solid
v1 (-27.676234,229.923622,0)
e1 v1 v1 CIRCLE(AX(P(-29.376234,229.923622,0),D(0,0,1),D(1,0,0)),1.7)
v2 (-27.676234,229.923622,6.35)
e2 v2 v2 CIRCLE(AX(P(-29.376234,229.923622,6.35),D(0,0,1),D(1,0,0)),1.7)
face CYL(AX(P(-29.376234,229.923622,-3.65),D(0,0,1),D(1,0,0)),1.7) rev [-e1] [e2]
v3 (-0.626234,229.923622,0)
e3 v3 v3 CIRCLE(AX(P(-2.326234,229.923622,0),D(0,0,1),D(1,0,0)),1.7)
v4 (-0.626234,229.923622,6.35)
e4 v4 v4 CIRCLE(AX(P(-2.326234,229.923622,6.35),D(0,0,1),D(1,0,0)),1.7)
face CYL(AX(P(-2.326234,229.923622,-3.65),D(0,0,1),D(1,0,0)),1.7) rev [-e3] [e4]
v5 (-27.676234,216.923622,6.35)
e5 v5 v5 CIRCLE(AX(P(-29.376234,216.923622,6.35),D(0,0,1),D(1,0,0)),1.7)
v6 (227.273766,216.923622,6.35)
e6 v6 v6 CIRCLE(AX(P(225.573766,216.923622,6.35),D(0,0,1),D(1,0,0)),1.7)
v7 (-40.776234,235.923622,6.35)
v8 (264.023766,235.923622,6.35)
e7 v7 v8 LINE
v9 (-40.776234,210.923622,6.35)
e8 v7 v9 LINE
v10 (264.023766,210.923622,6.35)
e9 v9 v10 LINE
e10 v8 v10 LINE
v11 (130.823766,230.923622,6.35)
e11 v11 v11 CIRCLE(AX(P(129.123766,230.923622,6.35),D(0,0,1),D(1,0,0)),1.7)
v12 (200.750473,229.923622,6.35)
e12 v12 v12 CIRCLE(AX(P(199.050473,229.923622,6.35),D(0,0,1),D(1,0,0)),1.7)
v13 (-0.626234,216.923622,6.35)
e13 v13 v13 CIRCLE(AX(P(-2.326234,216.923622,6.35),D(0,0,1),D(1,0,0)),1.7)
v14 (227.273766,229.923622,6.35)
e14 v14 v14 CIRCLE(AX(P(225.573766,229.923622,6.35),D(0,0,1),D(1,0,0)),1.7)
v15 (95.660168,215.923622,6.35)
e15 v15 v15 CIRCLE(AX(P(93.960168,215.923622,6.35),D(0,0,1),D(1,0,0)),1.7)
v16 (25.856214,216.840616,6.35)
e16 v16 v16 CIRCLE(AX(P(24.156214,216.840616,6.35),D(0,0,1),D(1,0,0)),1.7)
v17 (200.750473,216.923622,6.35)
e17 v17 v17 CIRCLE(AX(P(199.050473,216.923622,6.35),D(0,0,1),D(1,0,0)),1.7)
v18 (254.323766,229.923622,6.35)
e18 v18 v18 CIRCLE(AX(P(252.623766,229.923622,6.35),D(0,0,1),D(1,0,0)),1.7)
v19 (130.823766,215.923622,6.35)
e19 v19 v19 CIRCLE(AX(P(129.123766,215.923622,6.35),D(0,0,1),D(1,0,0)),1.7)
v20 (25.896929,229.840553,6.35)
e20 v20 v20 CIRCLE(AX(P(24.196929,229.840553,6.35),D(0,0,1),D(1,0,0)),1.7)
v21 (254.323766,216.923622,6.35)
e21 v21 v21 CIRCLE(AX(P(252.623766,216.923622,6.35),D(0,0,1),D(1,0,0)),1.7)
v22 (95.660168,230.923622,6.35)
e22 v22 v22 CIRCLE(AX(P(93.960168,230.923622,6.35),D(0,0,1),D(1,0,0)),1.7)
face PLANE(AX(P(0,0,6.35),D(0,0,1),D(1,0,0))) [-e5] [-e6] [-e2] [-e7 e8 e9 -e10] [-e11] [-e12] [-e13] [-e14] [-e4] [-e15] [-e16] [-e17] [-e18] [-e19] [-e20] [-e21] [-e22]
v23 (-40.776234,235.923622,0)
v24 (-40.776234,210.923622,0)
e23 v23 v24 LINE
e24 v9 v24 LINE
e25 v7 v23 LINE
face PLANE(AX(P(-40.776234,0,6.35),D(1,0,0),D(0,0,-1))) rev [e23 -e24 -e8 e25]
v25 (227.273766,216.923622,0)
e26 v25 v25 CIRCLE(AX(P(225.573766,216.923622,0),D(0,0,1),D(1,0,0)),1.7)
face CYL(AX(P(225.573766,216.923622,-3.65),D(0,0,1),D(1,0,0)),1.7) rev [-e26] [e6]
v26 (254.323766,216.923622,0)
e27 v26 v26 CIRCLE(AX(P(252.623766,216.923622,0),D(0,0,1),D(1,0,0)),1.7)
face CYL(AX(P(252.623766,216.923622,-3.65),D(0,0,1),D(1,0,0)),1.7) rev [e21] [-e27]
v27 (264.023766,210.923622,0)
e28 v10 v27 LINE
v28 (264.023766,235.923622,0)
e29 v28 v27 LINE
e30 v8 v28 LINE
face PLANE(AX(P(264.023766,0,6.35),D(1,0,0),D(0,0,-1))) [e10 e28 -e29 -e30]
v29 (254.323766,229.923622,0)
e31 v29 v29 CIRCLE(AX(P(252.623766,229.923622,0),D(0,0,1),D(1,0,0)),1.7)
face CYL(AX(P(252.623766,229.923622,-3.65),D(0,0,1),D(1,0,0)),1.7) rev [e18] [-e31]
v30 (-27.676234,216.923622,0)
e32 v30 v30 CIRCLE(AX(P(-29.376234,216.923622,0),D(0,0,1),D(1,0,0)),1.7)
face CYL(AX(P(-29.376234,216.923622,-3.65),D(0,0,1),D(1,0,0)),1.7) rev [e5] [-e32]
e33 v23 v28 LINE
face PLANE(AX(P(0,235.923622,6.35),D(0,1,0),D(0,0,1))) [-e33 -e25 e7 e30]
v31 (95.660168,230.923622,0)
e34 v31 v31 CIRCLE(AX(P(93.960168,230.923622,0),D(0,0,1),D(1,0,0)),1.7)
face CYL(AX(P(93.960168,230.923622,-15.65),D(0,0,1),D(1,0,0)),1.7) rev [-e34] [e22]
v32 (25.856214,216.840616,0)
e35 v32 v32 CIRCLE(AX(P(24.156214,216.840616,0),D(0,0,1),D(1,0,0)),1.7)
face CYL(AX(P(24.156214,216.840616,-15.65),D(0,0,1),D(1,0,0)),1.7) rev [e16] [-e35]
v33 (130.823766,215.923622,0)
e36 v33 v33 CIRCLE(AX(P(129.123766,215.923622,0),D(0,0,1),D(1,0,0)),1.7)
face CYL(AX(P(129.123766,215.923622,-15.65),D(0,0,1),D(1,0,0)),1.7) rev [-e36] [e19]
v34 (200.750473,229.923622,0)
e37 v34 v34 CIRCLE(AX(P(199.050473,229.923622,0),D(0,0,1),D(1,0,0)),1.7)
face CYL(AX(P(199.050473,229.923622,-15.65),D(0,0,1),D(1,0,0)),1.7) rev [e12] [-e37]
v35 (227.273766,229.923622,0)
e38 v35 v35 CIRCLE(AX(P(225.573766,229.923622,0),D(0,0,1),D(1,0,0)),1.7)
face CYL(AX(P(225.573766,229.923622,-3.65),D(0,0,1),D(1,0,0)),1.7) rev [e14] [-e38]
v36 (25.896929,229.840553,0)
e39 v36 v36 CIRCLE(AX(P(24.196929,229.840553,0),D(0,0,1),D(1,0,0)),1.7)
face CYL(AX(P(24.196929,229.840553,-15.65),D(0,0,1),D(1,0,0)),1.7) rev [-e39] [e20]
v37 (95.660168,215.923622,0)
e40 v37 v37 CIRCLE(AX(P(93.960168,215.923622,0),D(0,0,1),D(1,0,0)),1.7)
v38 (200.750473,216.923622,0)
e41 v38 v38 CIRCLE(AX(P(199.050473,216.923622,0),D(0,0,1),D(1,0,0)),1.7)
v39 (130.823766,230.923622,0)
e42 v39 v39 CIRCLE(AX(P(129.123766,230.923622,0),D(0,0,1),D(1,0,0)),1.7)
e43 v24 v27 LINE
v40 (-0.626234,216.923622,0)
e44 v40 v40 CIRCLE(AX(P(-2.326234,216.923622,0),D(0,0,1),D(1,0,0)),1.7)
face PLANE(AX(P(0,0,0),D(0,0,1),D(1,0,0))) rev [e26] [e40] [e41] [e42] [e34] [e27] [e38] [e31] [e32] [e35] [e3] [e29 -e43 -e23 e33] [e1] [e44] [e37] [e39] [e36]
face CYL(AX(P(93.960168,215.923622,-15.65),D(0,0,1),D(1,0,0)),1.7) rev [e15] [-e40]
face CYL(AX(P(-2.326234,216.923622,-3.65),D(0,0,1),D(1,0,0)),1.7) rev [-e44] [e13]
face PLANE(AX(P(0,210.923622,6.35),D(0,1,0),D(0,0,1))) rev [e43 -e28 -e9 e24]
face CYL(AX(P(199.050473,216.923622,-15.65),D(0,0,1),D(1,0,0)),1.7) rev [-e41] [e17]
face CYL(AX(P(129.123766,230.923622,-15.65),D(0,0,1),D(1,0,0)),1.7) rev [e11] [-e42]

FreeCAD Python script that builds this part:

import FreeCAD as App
import Part
import Sketcher

V = App.Vector


def add_polygon(sketch, points):
    """Adds a closed chain of lines whose ends are joined by coincident constraints."""
    first, n = sketch.GeometryCount, len(points)
    for a, b in zip(points, points[1:] + points[:1]):
        sketch.addGeometry(Part.LineSegment(App.Vector(*a, 0), App.Vector(*b, 0)), False)
    for i in range(n):
        sketch.addConstraint(Sketcher.Constraint("Coincident", first + i, 2, first + (i + 1) % n, 1))

doc = App.newDocument("Part")
body = doc.addObject("PartDesign::Body", "Body")

sketch1 = doc.addObject("Sketcher::SketchObject", "Sketch")
body.addObject(sketch1)
sketch1.AttachmentSupport = (doc.XY_Plane, [""])
sketch1.MapMode = "FlatFace"
add_polygon(sketch1, [(-41, 236), (-41, 211), (264, 211), (264, 236)])
sketch1.addConstraint(Sketcher.Constraint("Vertical", 0))
sketch1.addConstraint(Sketcher.Constraint("Horizontal", 1))
sketch1.addConstraint(Sketcher.Constraint("Vertical", 2))
sketch1.addConstraint(Sketcher.Constraint("Horizontal", 3))
sketch1.addConstraint(Sketcher.Constraint("DistanceY", 0, 2, 0, 1, 25.0))
sketch1.addConstraint(Sketcher.Constraint("DistanceX", 1, 1, 1, 2, 304.8))
sketch1.addConstraint(Sketcher.Constraint("DistanceX", 0, 2, -1, 1, 40.776234))
sketch1.addConstraint(Sketcher.Constraint("DistanceY", -1, 1, 0, 2, 210.923622))
pad1 = doc.addObject("PartDesign::Pad", "Pad")
body.addObject(pad1)
pad1.Profile = sketch1
pad1.Length = 6.35

sketch2 = doc.addObject("Sketcher::SketchObject", "Sketch001")
body.addObject(sketch2)
sketch2.AttachmentSupport = (doc.XY_Plane, [""])
sketch2.MapMode = "FlatFace"
sketch2.AttachmentOffset = App.Placement(V(0, 0, 6.35), App.Rotation())
sketch2.addGeometry(Part.Circle(V(225.6, 216.9, 0), V(0, 0, 1), 1.7), False)
sketch2.addGeometry(Part.Circle(V(225.6, 229.9, 0), V(0, 0, 1), 1.7), False)
sketch2.addGeometry(Part.Circle(V(252.6, 229.9, 0), V(0, 0, 1), 1.7), False)
sketch2.addGeometry(Part.Circle(V(252.6, 216.9, 0), V(0, 0, 1), 1.7), False)
sketch2.addGeometry(Part.Circle(V(-2.3, 216.9, 0), V(0, 0, 1), 1.7), False)
sketch2.addGeometry(Part.Circle(V(-29.4, 216.9, 0), V(0, 0, 1), 1.7), False)
sketch2.addGeometry(Part.Circle(V(-29.4, 229.9, 0), V(0, 0, 1), 1.7), False)
sketch2.addGeometry(Part.Circle(V(-2.3, 229.9, 0), V(0, 0, 1), 1.7), False)
sketch2.addConstraint(Sketcher.Constraint("Equal", 0, 1))
sketch2.addConstraint(Sketcher.Constraint("Equal", 1, 2))
sketch2.addConstraint(Sketcher.Constraint("Equal", 2, 3))
sketch2.addConstraint(Sketcher.Constraint("Equal", 3, 4))
sketch2.addConstraint(Sketcher.Constraint("Equal", 4, 5))
sketch2.addConstraint(Sketcher.Constraint("Equal", 5, 6))
sketch2.addConstraint(Sketcher.Constraint("Equal", 6, 7))
sketch2.addConstraint(Sketcher.Constraint("Horizontal", 1, 3, 2, 3))
sketch2.addConstraint(Sketcher.Constraint("Horizontal", 0, 3, 3, 3))
sketch2.addConstraint(Sketcher.Constraint("Horizontal", 3, 3, 4, 3))
sketch2.addConstraint(Sketcher.Constraint("Horizontal", 4, 3, 5, 3))
sketch2.addConstraint(Sketcher.Constraint("Horizontal", 2, 3, 6, 3))
sketch2.addConstraint(Sketcher.Constraint("Horizontal", 6, 3, 7, 3))
sketch2.addConstraint(Sketcher.Constraint("Vertical", 0, 3, 1, 3))
sketch2.addConstraint(Sketcher.Constraint("Vertical", 2, 3, 3, 3))
sketch2.addConstraint(Sketcher.Constraint("Vertical", 5, 3, 6, 3))
sketch2.addConstraint(Sketcher.Constraint("Vertical", 4, 3, 7, 3))
sketch2.addConstraint(Sketcher.Constraint("Diameter", 0, 3.4))
sketch2.addConstraint(Sketcher.Constraint("DistanceY", 0, 3, 1, 3, 13.0))
sketch2.addConstraint(Sketcher.Constraint("DistanceX", 5, 3, 3, 3, 282.0))
sketch2.addConstraint(Sketcher.Constraint("DistanceX", 4, 3, 0, 3, 227.9))
sketch2.addConstraint(Sketcher.Constraint("DistanceX", 1, 3, 2, 3, 27.05))
sketch2.addConstraint(Sketcher.Constraint("DistanceX", -1, 1, 0, 3, 225.573766))
sketch2.addConstraint(Sketcher.Constraint("DistanceY", -1, 1, 0, 3, 216.923622))
pocket1 = doc.addObject("PartDesign::Pocket", "Pocket")
body.addObject(pocket1)
pocket1.Profile = sketch2
pocket1.Length = 10

sketch3 = doc.addObject("Sketcher::SketchObject", "Sketch002")
body.addObject(sketch3)
sketch3.AttachmentSupport = (doc.XY_Plane, [""])
sketch3.MapMode = "FlatFace"
sketch3.AttachmentOffset = App.Placement(V(0, 0, 6.35), App.Rotation())
sketch3.addGeometry(Part.Circle(V(225.6, 216.9, 0), V(0, 0, 1), 1.7), False)
sketch3.addGeometry(Part.Circle(V(225.6, 229.9, 0), V(0, 0, 1), 1.7), False)
sketch3.addGeometry(Part.Circle(V(199.1, 216.9, 0), V(0, 0, 1), 1.7), False)
sketch3.addGeometry(Part.Circle(V(199.1, 229.9, 0), V(0, 0, 1), 1.7), False)
sketch3.addGeometry(Part.Circle(V(129.1, 215.9, 0), V(0, 0, 1), 1.7), False)
sketch3.addGeometry(Part.Circle(V(129.1, 230.9, 0), V(0, 0, 1), 1.7), False)
sketch3.addGeometry(Part.Circle(V(94, 215.9, 0), V(0, 0, 1), 1.7), False)
sketch3.addGeometry(Part.Circle(V(94, 230.9, 0), V(0, 0, 1), 1.7), False)
sketch3.addGeometry(Part.Circle(V(24.2, 229.8, 0), V(0, 0, 1), 1.7), False)
sketch3.addGeometry(Part.Circle(V(24.2, 216.8, 0), V(0, 0, 1), 1.7), False)
sketch3.addConstraint(Sketcher.Constraint("Equal", 0, 1))
sketch3.addConstraint(Sketcher.Constraint("Equal", 1, 2))
sketch3.addConstraint(Sketcher.Constraint("Equal", 2, 3))
sketch3.addConstraint(Sketcher.Constraint("Equal", 3, 4))
sketch3.addConstraint(Sketcher.Constraint("Equal", 4, 5))
sketch3.addConstraint(Sketcher.Constraint("Equal", 5, 6))
sketch3.addConstraint(Sketcher.Constraint("Equal", 6, 7))
sketch3.addConstraint(Sketcher.Constraint("Equal", 7, 8))
sketch3.addConstraint(Sketcher.Constraint("Equal", 8, 9))
sketch3.addConstraint(Sketcher.Constraint("Horizontal", 0, 3, 2, 3))
sketch3.addConstraint(Sketcher.Constraint("Horizontal", 1, 3, 3, 3))
sketch3.addConstraint(Sketcher.Constraint("Horizontal", 4, 3, 6, 3))
sketch3.addConstraint(Sketcher.Constraint("Horizontal", 5, 3, 7, 3))
sketch3.addConstraint(Sketcher.Constraint("Vertical", 0, 3, 1, 3))
sketch3.addConstraint(Sketcher.Constraint("Vertical", 2, 3, 3, 3))
sketch3.addConstraint(Sketcher.Constraint("Vertical", 4, 3, 5, 3))
sketch3.addConstraint(Sketcher.Constraint("Vertical", 6, 3, 7, 3))
sketch3.addConstraint(Sketcher.Constraint("Diameter", 0, 3.4))
sketch3.addConstraint(Sketcher.Constraint("DistanceY", 0, 3, 1, 3, 13.0))
sketch3.addConstraint(Sketcher.Constraint("DistanceY", 4, 3, 2, 3, 1.0))
sketch3.addConstraint(Sketcher.Constraint("DistanceY", 4, 3, 5, 3, 15.0))
sketch3.addConstraint(Sketcher.Constraint("DistanceX", 4, 3, 0, 3, 96.45))
sketch3.addConstraint(Sketcher.Constraint("DistanceX", 6, 3, 4, 3, 35.163598))
sketch3.addConstraint(Sketcher.Constraint("DistanceX", -1, 1, 8, 3, 24.196929))
sketch3.addConstraint(Sketcher.Constraint("DistanceX", 8, 3, 7, 3, 69.763239))
sketch3.addConstraint(Sketcher.Constraint("DistanceY", 8, 3, 7, 3, 1.08307))
sketch3.addConstraint(Sketcher.Constraint("DistanceY", -1, 1, 0, 3, 216.923622))
sketch3.addConstraint(Sketcher.Constraint("DistanceX", -1, 1, 2, 3, 199.050473))
sketch3.addConstraint(Sketcher.Constraint("DistanceX", -1, 1, 9, 3, 24.156214))
sketch3.addConstraint(Sketcher.Constraint("DistanceY", -1, 1, 9, 3, 216.840616))
pocket2 = doc.addObject("PartDesign::Pocket", "Pocket001")
body.addObject(pocket2)
pocket2.Profile = sketch3
pocket2.Length = 22

doc.recompute()
